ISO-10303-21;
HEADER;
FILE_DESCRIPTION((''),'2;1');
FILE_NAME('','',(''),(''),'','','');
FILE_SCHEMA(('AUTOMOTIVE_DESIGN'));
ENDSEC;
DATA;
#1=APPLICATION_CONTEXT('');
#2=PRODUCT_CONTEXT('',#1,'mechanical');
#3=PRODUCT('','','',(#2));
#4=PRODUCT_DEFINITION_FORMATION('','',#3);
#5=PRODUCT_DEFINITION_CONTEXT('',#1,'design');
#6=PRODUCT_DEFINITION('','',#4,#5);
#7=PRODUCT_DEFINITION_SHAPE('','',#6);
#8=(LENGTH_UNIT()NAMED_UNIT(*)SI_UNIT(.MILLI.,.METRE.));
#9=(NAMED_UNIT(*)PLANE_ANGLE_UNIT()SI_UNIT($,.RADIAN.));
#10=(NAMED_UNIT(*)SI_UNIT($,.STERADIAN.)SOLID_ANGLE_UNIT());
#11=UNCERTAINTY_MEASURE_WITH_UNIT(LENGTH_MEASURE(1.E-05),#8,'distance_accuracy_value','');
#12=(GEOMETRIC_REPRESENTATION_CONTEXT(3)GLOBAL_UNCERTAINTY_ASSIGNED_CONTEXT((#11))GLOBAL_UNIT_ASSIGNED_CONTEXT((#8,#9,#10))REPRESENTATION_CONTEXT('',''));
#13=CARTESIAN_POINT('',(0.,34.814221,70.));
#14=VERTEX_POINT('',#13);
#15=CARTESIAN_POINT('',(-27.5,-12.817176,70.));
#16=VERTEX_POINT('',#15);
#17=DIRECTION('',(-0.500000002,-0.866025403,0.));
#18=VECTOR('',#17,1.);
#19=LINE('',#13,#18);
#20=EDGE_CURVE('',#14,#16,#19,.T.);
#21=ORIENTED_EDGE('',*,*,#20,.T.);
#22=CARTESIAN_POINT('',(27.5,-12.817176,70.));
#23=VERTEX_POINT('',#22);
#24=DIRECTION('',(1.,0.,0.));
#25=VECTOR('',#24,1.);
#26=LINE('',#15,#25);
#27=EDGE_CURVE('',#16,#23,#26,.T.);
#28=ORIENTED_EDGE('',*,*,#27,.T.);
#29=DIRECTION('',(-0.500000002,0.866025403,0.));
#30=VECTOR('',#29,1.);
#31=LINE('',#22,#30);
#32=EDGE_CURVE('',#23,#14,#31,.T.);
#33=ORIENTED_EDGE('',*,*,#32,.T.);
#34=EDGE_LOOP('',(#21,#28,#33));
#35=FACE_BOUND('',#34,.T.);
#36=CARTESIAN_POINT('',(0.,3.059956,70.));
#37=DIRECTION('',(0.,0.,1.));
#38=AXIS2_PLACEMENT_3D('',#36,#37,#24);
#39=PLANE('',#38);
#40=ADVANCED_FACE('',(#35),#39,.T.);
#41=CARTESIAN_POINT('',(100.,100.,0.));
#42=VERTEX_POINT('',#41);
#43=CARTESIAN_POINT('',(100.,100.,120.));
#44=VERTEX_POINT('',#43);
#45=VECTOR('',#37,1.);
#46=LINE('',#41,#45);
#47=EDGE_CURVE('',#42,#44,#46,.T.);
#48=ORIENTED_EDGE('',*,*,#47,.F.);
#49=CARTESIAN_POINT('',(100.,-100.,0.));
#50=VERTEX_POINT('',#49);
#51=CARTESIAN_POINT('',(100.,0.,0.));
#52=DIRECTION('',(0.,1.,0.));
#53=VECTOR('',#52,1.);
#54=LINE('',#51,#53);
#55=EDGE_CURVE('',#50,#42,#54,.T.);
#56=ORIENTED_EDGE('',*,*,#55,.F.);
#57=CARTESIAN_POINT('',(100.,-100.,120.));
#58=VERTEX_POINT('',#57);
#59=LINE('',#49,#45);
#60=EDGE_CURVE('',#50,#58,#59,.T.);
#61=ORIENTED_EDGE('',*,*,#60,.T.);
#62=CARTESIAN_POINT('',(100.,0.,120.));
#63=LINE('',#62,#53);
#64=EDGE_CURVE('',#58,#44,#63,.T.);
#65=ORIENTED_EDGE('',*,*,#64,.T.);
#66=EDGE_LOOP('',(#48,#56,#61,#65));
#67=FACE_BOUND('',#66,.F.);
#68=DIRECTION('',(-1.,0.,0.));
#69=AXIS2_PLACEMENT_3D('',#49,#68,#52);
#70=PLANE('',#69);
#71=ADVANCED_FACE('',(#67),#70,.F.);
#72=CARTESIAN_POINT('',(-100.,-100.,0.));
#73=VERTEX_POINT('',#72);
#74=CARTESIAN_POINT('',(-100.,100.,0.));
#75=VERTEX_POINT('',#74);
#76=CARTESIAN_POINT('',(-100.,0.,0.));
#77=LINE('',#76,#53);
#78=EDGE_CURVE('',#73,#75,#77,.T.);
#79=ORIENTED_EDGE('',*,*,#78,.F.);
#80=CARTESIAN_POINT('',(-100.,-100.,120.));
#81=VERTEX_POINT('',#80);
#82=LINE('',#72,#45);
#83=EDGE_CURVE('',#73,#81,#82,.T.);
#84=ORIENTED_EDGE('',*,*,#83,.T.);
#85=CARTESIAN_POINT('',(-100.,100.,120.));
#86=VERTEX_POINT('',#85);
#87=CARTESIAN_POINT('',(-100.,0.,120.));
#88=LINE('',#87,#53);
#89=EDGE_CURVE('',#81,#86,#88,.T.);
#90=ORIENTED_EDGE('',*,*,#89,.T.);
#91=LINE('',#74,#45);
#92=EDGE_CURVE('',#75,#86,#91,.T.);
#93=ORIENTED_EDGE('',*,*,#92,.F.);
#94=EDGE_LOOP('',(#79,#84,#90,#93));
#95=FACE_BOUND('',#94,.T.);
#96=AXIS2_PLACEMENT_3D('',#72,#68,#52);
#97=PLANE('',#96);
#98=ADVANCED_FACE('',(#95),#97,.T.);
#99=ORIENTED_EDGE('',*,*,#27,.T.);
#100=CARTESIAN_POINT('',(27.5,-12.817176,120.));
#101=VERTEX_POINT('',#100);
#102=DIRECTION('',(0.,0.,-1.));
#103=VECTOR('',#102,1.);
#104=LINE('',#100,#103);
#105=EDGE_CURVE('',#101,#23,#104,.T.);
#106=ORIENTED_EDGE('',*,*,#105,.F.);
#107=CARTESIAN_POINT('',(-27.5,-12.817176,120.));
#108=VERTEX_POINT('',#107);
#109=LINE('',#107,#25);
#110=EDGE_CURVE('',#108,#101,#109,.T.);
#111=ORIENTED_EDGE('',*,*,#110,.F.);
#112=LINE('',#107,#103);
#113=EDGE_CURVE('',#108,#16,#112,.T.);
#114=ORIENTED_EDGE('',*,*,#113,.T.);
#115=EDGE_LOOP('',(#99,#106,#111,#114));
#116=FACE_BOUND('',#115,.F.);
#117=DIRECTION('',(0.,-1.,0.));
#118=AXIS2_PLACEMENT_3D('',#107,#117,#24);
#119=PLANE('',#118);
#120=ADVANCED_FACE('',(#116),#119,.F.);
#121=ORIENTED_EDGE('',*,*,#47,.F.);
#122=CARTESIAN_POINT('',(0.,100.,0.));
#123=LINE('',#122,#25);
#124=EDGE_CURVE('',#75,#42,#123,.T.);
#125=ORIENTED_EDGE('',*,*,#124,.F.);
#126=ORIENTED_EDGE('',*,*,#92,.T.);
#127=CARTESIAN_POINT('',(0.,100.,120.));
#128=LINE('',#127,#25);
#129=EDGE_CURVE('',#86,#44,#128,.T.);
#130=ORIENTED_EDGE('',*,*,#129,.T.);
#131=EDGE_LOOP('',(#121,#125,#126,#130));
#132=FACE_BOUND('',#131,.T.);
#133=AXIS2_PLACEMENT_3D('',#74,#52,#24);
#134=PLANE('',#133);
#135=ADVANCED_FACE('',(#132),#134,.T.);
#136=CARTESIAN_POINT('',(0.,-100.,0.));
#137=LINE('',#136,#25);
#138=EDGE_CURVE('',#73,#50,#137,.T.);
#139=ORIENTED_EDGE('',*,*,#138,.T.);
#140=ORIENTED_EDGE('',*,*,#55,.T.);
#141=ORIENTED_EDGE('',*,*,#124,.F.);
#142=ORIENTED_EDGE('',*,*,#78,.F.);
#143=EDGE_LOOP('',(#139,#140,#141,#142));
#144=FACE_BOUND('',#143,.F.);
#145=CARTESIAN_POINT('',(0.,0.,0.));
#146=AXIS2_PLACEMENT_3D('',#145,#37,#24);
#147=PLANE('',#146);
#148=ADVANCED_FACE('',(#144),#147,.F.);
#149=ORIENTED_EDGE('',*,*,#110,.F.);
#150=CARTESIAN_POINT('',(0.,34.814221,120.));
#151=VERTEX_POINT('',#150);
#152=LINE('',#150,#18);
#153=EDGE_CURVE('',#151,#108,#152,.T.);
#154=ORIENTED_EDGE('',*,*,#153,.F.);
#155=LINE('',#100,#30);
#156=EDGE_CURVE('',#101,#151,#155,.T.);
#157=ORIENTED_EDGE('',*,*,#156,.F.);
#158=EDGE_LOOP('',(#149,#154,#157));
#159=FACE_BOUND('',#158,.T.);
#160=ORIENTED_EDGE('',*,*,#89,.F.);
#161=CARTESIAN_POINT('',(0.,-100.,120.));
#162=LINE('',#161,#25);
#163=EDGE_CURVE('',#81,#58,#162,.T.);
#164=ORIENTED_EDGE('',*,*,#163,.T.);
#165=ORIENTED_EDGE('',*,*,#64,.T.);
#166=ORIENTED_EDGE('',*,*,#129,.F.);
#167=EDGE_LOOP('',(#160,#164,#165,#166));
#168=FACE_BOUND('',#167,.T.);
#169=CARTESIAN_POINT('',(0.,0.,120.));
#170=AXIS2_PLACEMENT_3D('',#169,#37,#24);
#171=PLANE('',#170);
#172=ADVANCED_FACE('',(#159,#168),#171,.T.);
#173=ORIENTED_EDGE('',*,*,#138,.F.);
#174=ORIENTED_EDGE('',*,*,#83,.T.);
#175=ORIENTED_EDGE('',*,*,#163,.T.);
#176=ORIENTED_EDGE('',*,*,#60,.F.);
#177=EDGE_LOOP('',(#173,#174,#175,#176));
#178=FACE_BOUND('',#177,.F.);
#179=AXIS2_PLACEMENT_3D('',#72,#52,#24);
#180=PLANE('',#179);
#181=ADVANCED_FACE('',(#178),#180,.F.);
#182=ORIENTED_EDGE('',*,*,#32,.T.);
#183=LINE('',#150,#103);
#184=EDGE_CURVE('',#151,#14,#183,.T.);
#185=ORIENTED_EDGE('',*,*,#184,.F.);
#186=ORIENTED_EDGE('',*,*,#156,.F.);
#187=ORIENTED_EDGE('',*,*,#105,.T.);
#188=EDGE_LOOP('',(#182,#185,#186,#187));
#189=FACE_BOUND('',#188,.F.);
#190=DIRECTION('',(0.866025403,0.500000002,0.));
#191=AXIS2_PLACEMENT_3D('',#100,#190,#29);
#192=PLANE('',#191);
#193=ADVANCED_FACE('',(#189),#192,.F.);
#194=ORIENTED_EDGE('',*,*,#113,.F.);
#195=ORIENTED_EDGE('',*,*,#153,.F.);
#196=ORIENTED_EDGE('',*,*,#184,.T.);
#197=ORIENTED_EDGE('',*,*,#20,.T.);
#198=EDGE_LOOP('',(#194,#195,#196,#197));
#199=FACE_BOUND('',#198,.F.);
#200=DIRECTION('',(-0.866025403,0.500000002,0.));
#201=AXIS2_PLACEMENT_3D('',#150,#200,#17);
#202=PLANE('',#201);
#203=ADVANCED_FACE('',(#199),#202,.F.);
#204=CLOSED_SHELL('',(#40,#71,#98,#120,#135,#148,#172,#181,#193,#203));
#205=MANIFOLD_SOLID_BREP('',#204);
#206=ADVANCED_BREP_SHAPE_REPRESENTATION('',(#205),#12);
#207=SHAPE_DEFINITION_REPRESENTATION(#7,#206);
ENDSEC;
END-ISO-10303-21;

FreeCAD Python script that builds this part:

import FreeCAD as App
import Part
import Sketcher
from FreeCAD import Vector
Q = App.Units.Quantity


def add_polygon(sketch, points):
    """Adds a closed chain of lines whose ends are joined by coincident constraints."""
    first, n = sketch.GeometryCount, len(points)
    for a, b in zip(points, points[1:] + points[:1]):
        sketch.addGeometry(Part.LineSegment(App.Vector(*a, 0), App.Vector(*b, 0)), False)
    for i in range(n):
        sketch.addConstraint(Sketcher.Constraint("Coincident", first + i, 2, first + (i + 1) % n, 1))

doc = App.newDocument("Part")
body = doc.addObject("PartDesign::Body", "Body")

sketch1 = doc.addObject("Sketcher::SketchObject", "Sketch")
body.addObject(sketch1)
sketch1.AttachmentSupport = (doc.XY_Plane, [""])
sketch1.MapMode = "FlatFace"
add_polygon(sketch1, [(-100, 100), (-100, -100), (100, -100), (100, 100)])
sketch1.addConstraint([
    Sketcher.Constraint("Vertical", 0),
    Sketcher.Constraint("Horizontal", 1),
    Sketcher.Constraint("Vertical", 2),
    Sketcher.Constraint("Horizontal", 3),
    Sketcher.Constraint("Symmetric", 0, 2, 2, 2, -1, 1),
    Sketcher.Constraint("Equal", 3, 0),
    Sketcher.Constraint("DistanceX", 1, 1, 1, 2, Q("200 mm")),
])
pad1 = doc.addObject("PartDesign::Pad", "Pad")
body.addObject(pad1)
pad1.Profile = sketch1
pad1.Length = 120

sketch2 = doc.addObject("Sketcher::SketchObject", "Sketch001")
body.addObject(sketch2)
sketch2.AttachmentSupport = (doc.XY_Plane, [""])
sketch2.MapMode = "FlatFace"
sketch2.AttachmentOffset = App.Placement(Vector(0, 0, 120), App.Rotation())
add_polygon(sketch2, [(-28, -13), (28, -13), (0, 35)])
sketch2.addConstraint([
    Sketcher.Constraint("Horizontal", 0),
    Sketcher.Constraint("PointOnObject", 1, 2, -2),
    Sketcher.Constraint("Equal", 1, 2),
    Sketcher.Constraint("DistanceX", 0, 1, 0, 2, Q("55 mm")),
    Sketcher.Constraint("Angle", 1, Q("120 deg")),
    Sketcher.Constraint("DistanceY", -1, 1, 1, 2, Q("34.814221 mm")),
])
pocket1 = doc.addObject("PartDesign::Pocket", "Pocket")
body.addObject(pocket1)
pocket1.Profile = sketch2
pocket1.Length = 50

doc.recompute()
